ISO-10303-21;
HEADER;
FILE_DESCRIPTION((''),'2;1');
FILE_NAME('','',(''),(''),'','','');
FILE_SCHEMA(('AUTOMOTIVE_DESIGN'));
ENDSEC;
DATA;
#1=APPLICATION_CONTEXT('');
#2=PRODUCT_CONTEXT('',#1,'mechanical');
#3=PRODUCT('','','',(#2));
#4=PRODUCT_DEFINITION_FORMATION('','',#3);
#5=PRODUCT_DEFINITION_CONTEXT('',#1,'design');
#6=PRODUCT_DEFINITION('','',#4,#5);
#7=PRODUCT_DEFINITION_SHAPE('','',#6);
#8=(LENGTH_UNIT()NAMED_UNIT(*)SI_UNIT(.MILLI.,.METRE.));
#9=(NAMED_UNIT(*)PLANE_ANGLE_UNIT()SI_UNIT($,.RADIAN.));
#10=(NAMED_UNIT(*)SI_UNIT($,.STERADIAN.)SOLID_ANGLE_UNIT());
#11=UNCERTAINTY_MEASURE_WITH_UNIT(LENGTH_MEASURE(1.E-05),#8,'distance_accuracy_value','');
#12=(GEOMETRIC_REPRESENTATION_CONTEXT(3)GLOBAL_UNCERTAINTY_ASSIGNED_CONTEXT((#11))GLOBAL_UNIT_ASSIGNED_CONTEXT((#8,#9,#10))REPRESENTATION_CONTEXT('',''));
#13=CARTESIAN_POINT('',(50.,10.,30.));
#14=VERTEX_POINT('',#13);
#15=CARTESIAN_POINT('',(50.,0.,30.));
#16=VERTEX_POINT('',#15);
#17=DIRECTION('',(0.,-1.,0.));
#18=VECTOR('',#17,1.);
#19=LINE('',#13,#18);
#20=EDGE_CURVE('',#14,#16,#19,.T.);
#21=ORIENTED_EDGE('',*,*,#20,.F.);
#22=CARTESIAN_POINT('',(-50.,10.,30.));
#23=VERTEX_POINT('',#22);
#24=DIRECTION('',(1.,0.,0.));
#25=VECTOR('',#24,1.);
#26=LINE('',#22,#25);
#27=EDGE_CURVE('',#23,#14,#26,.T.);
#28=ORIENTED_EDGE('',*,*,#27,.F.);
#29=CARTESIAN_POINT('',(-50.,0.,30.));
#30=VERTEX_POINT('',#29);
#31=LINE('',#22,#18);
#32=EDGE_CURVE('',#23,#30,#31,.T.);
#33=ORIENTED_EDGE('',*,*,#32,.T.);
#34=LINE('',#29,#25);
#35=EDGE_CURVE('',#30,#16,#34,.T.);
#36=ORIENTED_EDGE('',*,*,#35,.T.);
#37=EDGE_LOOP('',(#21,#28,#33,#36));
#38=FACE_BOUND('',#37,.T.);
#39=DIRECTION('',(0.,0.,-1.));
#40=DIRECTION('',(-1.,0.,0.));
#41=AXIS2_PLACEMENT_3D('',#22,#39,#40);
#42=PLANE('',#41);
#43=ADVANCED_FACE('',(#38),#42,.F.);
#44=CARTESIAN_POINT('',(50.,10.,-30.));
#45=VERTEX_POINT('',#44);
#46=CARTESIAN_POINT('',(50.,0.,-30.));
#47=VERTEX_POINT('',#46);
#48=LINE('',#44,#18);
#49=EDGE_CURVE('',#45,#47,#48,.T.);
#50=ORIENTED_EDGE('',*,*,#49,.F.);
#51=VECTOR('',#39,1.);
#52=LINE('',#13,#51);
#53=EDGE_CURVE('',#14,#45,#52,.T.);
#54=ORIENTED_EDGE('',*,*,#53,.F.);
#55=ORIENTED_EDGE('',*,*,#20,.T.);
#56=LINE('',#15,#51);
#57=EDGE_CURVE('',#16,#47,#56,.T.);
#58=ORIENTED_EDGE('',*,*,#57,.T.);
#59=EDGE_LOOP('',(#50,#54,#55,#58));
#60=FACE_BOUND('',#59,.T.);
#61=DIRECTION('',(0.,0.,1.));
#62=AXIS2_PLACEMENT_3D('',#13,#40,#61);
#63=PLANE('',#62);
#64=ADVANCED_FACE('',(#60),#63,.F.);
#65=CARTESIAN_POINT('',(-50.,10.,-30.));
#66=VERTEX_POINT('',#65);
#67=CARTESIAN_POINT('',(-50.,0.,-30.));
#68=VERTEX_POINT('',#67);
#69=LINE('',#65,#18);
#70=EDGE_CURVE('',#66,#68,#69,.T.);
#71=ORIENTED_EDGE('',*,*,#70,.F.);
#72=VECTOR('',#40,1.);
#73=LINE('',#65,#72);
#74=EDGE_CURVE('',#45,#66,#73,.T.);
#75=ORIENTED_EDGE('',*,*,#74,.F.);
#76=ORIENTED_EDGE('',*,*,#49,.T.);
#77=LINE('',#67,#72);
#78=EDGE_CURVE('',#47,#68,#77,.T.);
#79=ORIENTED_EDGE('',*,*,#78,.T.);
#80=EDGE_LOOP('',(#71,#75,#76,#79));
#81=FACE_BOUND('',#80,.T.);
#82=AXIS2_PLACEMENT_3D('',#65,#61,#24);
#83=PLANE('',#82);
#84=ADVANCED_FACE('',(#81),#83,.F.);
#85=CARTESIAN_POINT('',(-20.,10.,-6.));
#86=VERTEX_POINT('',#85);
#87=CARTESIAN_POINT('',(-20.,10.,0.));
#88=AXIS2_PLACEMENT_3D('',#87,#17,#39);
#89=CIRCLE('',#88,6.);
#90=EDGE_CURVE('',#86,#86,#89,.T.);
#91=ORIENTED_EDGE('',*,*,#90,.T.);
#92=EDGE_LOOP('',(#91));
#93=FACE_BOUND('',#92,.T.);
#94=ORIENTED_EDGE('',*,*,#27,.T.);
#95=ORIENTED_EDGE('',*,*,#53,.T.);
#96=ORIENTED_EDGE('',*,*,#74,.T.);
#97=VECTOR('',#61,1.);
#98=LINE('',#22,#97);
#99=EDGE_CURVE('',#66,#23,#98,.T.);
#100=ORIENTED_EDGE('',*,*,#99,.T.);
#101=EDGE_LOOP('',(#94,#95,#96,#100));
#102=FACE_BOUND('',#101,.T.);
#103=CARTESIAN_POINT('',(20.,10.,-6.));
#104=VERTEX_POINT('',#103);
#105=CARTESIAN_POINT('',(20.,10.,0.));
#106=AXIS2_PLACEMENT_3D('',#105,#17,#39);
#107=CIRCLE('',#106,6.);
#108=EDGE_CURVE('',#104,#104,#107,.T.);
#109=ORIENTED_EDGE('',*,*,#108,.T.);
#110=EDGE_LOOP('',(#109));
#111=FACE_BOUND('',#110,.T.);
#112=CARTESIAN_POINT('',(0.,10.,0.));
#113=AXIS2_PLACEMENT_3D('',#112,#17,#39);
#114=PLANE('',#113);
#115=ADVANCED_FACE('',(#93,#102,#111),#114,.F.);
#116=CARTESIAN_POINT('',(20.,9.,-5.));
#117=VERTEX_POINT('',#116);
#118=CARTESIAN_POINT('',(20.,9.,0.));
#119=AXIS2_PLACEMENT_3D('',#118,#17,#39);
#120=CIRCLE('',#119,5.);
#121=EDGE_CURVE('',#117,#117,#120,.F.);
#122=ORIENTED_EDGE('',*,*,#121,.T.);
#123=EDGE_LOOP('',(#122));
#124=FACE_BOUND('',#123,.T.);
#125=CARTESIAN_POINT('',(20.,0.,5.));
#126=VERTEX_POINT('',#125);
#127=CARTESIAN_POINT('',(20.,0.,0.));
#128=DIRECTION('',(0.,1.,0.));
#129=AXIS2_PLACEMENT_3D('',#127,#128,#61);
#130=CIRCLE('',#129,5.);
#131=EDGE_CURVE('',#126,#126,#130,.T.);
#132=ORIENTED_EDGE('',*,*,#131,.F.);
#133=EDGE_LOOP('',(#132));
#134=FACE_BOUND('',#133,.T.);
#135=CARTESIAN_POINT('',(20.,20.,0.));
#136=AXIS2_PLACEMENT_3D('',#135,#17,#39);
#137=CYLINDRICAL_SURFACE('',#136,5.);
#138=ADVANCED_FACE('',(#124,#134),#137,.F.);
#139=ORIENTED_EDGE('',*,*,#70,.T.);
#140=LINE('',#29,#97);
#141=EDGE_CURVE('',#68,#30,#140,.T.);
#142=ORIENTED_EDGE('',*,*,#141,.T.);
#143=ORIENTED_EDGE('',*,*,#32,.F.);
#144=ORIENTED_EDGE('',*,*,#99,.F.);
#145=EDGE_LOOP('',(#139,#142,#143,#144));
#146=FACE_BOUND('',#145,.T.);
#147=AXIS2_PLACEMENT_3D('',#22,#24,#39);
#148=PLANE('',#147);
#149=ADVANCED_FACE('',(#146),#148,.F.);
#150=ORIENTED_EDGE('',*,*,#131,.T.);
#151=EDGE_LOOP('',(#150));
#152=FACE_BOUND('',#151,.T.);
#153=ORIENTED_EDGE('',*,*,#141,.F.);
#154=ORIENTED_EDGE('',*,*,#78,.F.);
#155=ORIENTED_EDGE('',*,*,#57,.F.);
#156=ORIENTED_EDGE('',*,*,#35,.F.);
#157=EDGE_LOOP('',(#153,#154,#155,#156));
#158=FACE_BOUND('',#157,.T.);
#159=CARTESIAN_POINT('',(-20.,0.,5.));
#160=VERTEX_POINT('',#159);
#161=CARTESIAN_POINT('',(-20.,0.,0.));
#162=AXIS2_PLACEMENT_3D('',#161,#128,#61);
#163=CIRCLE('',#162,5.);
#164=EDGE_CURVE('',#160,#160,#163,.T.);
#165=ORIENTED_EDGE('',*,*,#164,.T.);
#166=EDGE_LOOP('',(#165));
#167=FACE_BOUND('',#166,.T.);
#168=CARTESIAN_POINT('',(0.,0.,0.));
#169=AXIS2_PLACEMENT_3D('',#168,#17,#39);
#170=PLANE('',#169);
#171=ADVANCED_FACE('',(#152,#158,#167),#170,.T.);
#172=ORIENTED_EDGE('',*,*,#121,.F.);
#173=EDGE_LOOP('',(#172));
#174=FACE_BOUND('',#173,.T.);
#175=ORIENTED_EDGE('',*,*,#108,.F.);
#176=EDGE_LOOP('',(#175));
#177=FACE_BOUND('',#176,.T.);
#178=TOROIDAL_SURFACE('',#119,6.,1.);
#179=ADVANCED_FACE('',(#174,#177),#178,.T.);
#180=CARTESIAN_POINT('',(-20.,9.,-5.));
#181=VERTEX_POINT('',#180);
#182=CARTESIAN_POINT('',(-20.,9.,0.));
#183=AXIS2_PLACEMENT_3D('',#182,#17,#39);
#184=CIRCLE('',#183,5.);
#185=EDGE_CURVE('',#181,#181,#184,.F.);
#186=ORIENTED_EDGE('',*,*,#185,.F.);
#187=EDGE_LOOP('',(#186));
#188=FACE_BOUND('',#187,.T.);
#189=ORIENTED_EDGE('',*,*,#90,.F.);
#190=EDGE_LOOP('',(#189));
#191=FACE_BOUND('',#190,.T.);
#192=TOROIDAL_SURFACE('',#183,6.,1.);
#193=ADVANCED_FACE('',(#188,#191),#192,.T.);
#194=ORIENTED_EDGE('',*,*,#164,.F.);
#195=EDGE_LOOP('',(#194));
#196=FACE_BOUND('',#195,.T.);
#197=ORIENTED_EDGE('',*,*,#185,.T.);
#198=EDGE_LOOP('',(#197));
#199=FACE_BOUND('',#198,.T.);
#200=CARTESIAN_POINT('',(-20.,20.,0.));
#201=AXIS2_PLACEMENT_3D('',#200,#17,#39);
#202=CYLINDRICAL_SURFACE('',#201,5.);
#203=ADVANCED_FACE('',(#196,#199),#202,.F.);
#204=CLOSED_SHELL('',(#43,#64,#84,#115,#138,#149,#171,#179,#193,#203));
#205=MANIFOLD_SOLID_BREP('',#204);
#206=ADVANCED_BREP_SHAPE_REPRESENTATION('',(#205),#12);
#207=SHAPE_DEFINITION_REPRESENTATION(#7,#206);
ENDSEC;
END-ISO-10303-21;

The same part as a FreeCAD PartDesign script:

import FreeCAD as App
import Part
import Sketcher
from FreeCAD import Vector


def edges_at(feature, points):
    """Names of the edges that pass closest to the given points."""
    edges = feature.Shape.Edges
    near = lambda p: min(range(len(edges)), key=lambda i: edges[i].distToShape(Part.Vertex(*p))[0])
    return sorted({f"Edge{near(p) + 1}" for p in points})


def add_polygon(sketch, points):
    """Adds a closed chain of lines whose ends are joined by coincident constraints."""
    first, n = sketch.GeometryCount, len(points)
    for a, b in zip(points, points[1:] + points[:1]):
        sketch.addGeometry(Part.LineSegment(App.Vector(*a, 0), App.Vector(*b, 0)), False)
    for i in range(n):
        sketch.addConstraint(Sketcher.Constraint("Coincident", first + i, 2, first + (i + 1) % n, 1))

doc = App.newDocument("Part")
params = doc.addObject("Spreadsheet::Sheet", "Params")
for row, (alias, value) in enumerate([
    ("sketch1_width", "100 mm"),
    ("sketch1_height", "60 mm"),
    ("pad1_length", "10 mm"),
    ("sketch2_diameter", "10 mm"),
    ("pocket1_length", "20 mm"),
    ("sketch3_diameter", "10 mm"),
    ("pocket2_length", "20 mm"),
    ("fillet_radius", "1 mm"),
], start=1):
    params.set(f"A{row}", alias)
    params.set(f"B{row}", "=" + value)
    params.setAlias(f"B{row}", alias)

body = doc.addObject("PartDesign::Body", "Body")

sketch1 = doc.addObject("Sketcher::SketchObject", "Sketch")
body.addObject(sketch1)
sketch1.AttachmentSupport = (doc.XZ_Plane, [""])
sketch1.MapMode = "FlatFace"
add_polygon(sketch1, [(-50, -30), (-50, 30), (50, 30), (50, -30)])
sketch1.addConstraint([
    Sketcher.Constraint("Vertical", 0),
    Sketcher.Constraint("Horizontal", 1),
    Sketcher.Constraint("Vertical", 2),
    Sketcher.Constraint("Horizontal", 3),
    Sketcher.Constraint("Symmetric", 0, 2, 2, 2, -1, 1),
    Sketcher.Constraint("DistanceX", 1, 1, 1, 2, 100.0),
    Sketcher.Constraint("DistanceY", 0, 1, 0, 2, 60.0),
])
sketch1.setExpression("Constraints[9]", "Params.sketch1_width")
sketch1.setExpression("Constraints[10]", "Params.sketch1_height")
pad1 = doc.addObject("PartDesign::Pad", "Pad")
body.addObject(pad1)
pad1.Profile = sketch1
pad1.setExpression("Length", "Params.pad1_length")
pad1.Reversed = True

sketch2 = doc.addObject("Sketcher::SketchObject", "Sketch001")
body.addObject(sketch2)
sketch2.AttachmentSupport = (doc.XZ_Plane, [""])
sketch2.MapMode = "FlatFace"
sketch2.addGeometry(Part.Circle(Vector(-20, 0, 0), Vector(0, 0, 1), 5), False)
sketch2.addConstraint([
    Sketcher.Constraint("PointOnObject", 0, 3, -1),
    Sketcher.Constraint("Diameter", 0, 10.0),
    Sketcher.Constraint("DistanceX", 0, 3, -1, 1, 20.0),
])
sketch2.setExpression("Constraints[1]", "Params.sketch2_diameter")
pocket1 = doc.addObject("PartDesign::Pocket", "Pocket")
body.addObject(pocket1)
pocket1.Profile = sketch2
pocket1.setExpression("Length", "Params.pocket1_length")

sketch3 = doc.addObject("Sketcher::SketchObject", "Sketch002")
body.addObject(sketch3)
sketch3.AttachmentSupport = (doc.XZ_Plane, [""])
sketch3.MapMode = "FlatFace"
sketch3.addGeometry(Part.Circle(Vector(20, 0, 0), Vector(0, 0, 1), 5), False)
sketch3.addConstraint([
    Sketcher.Constraint("PointOnObject", 0, 3, -1),
    Sketcher.Constraint("Diameter", 0, 10.0),
    Sketcher.Constraint("DistanceX", -1, 1, 0, 3, 20.0),
])
sketch3.setExpression("Constraints[1]", "Params.sketch3_diameter")
pocket2 = doc.addObject("PartDesign::Pocket", "Pocket001")
body.addObject(pocket2)
pocket2.Profile = sketch3
pocket2.setExpression("Length", "Params.pocket2_length")
doc.recompute()

fillet = doc.addObject("PartDesign::Fillet", "Fillet")
body.addObject(fillet)
fillet.Base = (pocket2, edges_at(pocket2, [(-20, 10, 5), (20, 10, 5)]))
fillet.setExpression("Radius", "Params.fillet_radius")

doc.recompute()
